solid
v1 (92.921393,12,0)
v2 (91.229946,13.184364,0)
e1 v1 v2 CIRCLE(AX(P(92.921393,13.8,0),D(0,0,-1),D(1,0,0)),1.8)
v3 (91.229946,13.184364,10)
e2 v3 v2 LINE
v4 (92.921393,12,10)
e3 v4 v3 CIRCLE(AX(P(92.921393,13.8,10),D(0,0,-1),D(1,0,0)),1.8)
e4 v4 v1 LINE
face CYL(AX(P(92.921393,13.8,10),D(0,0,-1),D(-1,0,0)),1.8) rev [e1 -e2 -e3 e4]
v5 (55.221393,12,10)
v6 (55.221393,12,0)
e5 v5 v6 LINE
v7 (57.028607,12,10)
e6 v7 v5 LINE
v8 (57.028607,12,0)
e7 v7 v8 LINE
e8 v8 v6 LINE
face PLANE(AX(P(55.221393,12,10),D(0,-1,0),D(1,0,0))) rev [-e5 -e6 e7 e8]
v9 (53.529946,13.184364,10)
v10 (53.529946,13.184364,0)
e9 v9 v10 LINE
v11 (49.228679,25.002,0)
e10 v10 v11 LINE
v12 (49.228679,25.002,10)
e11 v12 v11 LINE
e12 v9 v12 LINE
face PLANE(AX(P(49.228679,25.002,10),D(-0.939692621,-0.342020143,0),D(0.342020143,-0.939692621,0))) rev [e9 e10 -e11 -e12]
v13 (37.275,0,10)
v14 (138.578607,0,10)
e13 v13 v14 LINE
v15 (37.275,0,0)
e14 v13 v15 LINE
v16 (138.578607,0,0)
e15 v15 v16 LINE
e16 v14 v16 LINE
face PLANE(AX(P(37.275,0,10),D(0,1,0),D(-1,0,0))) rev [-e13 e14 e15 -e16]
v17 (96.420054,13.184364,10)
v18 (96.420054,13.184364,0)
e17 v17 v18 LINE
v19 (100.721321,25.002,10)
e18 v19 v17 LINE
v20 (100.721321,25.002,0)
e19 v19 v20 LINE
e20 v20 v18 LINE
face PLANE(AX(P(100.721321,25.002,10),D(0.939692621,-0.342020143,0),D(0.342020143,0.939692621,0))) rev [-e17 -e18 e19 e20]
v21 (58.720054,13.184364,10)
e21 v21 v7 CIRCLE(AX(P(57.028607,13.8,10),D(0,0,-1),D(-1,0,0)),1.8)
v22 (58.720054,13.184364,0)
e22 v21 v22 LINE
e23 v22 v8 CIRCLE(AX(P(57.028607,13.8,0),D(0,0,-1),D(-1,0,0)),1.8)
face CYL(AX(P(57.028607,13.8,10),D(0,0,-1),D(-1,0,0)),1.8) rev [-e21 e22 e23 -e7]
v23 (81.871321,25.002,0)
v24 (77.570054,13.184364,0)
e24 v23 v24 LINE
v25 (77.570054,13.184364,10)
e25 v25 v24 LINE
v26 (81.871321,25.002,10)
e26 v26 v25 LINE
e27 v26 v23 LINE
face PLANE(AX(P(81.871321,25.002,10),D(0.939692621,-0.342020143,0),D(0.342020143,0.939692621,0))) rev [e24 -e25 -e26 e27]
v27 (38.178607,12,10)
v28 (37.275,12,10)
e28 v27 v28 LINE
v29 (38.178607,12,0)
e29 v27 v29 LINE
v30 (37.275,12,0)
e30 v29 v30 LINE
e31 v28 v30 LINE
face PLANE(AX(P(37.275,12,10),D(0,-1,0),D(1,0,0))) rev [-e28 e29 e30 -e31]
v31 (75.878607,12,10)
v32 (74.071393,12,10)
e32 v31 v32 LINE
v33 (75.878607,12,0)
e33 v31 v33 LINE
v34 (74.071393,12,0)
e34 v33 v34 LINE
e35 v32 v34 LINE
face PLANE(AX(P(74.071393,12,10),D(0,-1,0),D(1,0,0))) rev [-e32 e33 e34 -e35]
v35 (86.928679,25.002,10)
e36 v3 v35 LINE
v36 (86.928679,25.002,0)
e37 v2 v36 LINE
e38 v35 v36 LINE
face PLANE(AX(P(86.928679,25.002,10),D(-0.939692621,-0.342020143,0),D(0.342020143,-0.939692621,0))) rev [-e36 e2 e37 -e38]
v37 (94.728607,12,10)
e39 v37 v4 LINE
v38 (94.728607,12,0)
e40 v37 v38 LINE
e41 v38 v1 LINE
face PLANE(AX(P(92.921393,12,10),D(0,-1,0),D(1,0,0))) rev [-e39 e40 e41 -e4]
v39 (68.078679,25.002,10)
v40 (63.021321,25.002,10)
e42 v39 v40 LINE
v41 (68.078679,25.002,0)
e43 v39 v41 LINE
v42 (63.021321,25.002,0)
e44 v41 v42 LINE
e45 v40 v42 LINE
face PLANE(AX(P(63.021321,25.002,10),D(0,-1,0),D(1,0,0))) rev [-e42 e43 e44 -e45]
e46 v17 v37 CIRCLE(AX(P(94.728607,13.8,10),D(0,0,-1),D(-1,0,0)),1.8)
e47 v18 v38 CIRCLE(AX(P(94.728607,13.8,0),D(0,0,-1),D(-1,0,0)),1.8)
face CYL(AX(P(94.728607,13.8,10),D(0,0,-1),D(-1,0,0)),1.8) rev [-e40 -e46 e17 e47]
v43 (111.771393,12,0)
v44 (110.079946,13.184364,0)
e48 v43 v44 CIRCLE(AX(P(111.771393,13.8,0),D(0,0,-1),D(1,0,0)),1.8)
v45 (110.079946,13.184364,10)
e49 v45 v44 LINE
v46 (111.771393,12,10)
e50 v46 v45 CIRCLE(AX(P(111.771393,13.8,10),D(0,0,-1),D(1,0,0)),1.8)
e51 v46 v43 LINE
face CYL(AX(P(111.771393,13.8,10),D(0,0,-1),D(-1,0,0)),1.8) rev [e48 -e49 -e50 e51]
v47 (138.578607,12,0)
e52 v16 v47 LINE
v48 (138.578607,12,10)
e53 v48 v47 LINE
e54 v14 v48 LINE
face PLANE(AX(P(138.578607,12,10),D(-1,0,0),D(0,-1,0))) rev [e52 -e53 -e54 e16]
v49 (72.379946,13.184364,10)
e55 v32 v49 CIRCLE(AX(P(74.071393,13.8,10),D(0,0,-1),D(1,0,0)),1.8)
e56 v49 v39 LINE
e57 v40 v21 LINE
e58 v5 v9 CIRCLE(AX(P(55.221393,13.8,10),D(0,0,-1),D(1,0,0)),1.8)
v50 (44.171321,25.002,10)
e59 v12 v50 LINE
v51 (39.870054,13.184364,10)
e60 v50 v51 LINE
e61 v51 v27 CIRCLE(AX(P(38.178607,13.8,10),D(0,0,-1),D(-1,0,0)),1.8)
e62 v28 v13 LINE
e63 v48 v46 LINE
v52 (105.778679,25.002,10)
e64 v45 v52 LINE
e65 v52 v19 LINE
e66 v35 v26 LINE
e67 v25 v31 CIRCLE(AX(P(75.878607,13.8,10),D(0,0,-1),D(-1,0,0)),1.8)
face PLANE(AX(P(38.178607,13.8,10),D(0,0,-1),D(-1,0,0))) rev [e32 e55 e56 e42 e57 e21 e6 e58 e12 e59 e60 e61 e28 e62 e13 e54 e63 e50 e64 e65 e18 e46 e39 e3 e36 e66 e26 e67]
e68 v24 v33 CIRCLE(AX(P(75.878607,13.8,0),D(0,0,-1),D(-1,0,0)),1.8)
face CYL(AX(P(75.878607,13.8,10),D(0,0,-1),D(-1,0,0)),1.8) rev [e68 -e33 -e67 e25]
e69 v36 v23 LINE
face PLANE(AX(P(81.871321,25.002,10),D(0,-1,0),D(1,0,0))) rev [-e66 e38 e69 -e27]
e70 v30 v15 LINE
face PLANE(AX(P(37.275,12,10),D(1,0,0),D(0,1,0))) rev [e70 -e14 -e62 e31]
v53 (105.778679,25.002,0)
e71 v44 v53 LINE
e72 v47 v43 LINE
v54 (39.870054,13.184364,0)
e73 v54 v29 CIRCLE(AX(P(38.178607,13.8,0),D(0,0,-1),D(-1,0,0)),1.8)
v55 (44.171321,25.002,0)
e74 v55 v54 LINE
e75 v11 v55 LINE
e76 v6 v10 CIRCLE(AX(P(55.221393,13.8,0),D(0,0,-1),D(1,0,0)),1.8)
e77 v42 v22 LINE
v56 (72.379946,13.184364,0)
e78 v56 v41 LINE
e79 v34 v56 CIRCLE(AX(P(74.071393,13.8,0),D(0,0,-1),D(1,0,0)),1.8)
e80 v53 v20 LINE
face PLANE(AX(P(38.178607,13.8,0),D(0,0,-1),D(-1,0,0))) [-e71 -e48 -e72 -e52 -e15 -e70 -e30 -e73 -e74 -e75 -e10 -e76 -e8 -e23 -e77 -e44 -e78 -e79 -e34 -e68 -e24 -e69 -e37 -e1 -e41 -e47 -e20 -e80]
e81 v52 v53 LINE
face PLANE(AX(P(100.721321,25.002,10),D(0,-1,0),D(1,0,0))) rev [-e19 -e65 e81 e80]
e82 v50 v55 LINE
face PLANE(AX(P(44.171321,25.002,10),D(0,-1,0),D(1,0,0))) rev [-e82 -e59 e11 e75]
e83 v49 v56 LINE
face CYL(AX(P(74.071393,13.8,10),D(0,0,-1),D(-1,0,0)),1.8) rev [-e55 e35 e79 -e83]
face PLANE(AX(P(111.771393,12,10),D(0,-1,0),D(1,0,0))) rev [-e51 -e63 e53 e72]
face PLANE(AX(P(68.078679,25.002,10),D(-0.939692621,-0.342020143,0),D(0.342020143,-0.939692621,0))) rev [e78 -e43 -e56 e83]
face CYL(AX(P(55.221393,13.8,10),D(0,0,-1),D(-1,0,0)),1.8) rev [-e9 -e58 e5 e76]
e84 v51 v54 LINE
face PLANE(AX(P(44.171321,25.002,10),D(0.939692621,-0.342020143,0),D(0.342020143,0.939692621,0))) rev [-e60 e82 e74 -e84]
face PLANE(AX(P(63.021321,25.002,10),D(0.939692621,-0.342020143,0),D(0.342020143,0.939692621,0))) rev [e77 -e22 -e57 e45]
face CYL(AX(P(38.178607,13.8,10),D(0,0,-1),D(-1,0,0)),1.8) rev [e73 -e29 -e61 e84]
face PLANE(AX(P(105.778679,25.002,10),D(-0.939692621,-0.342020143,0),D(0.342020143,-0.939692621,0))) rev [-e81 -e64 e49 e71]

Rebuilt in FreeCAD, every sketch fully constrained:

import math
import FreeCAD as App
import Part
import Sketcher

V = App.Vector
Q = App.Units.Quantity

doc = App.newDocument("Part")
body = doc.addObject("PartDesign::Body", "Body")

# Sketch on XY plane
sketch1 = doc.addObject("Sketcher::SketchObject", "Sketch")
body.addObject(sketch1)
sketch1.AttachmentSupport = (doc.XY_Plane, [""])
sketch1.MapMode = "FlatFace"
sketch1.addGeometry([
    Part.LineSegment(V(138.6, 0, 0), V(138.6, 12, 0)),  # 0
    Part.LineSegment(V(138.6, 12, 0), V(111.8, 12, 0)),  # 1
    Part.ArcOfCircle(Part.Circle(V(111.8, 13.8, 0), V(0, 0, 1), 1.8), math.radians(-160), math.radians(-90)),  # 2
    Part.LineSegment(V(110.1, 13.2, 0), V(105.8, 25, 0)),  # 3
    Part.LineSegment(V(105.8, 25, 0), V(100.7, 25, 0)),  # 4
    Part.LineSegment(V(100.7, 25, 0), V(96.4, 13.2, 0)),  # 5
    Part.ArcOfCircle(Part.Circle(V(94.7, 13.8, 0), V(0, 0, 1), 1.8), math.radians(-90), math.radians(-20)),  # 6
    Part.LineSegment(V(94.7, 12, 0), V(92.9, 12, 0)),  # 7
    Part.ArcOfCircle(Part.Circle(V(92.9, 13.8, 0), V(0, 0, 1), 1.8), math.radians(-160), math.radians(-90)),  # 8
    Part.LineSegment(V(91.2, 13.2, 0), V(86.9, 25, 0)),  # 9
    Part.LineSegment(V(86.9, 25, 0), V(81.9, 25, 0)),  # 10
    Part.LineSegment(V(81.9, 25, 0), V(77.6, 13.2, 0)),  # 11
    Part.ArcOfCircle(Part.Circle(V(75.9, 13.8, 0), V(0, 0, 1), 1.8), math.radians(-90), math.radians(-20)),  # 12
    Part.LineSegment(V(75.9, 12, 0), V(74.1, 12, 0)),  # 13
    Part.ArcOfCircle(Part.Circle(V(74.1, 13.8, 0), V(0, 0, 1), 1.8), math.radians(-160), math.radians(-90)),  # 14
    Part.LineSegment(V(72.4, 13.2, 0), V(68.1, 25, 0)),  # 15
    Part.LineSegment(V(68.1, 25, 0), V(63, 25, 0)),  # 16
    Part.LineSegment(V(63, 25, 0), V(58.7, 13.2, 0)),  # 17
    Part.ArcOfCircle(Part.Circle(V(57, 13.8, 0), V(0, 0, 1), 1.8), math.radians(-90), math.radians(-20)),  # 18
    Part.LineSegment(V(57, 12, 0), V(55.2, 12, 0)),  # 19
    Part.ArcOfCircle(Part.Circle(V(55.2, 13.8, 0), V(0, 0, 1), 1.8), math.radians(-160), math.radians(-90)),  # 20
    Part.LineSegment(V(53.5, 13.2, 0), V(49.2, 25, 0)),  # 21
    Part.LineSegment(V(49.2, 25, 0), V(44.2, 25, 0)),  # 22
    Part.LineSegment(V(44.2, 25, 0), V(39.9, 13.2, 0)),  # 23
    Part.ArcOfCircle(Part.Circle(V(38.2, 13.8, 0), V(0, 0, 1), 1.8), math.radians(-90), math.radians(-20)),  # 24
    Part.LineSegment(V(38.2, 12, 0), V(37.3, 12, 0)),  # 25
    Part.LineSegment(V(37.3, 12, 0), V(37.3, 0, 0)),  # 26
    Part.LineSegment(V(37.3, 0, 0), V(138.6, 0, 0)),  # 27
], False)
sketch1.addConstraint([
    Sketcher.Constraint("Coincident", 0, 2, 1, 1),
    Sketcher.Constraint("Tangent", 1, 2, 2, 2),
    Sketcher.Constraint("Tangent", 2, 1, 3, 1),
    Sketcher.Constraint("Coincident", 3, 2, 4, 1),
    Sketcher.Constraint("Coincident", 4, 2, 5, 1),
    Sketcher.Constraint("Tangent", 5, 2, 6, 2),
    Sketcher.Constraint("Tangent", 6, 1, 7, 1),
    Sketcher.Constraint("Tangent", 7, 2, 8, 2),
    Sketcher.Constraint("Tangent", 8, 1, 9, 1),
    Sketcher.Constraint("Coincident", 9, 2, 10, 1),
    Sketcher.Constraint("Coincident", 10, 2, 11, 1),
    Sketcher.Constraint("Tangent", 11, 2, 12, 2),
    Sketcher.Constraint("Tangent", 12, 1, 13, 1),
    Sketcher.Constraint("Tangent", 13, 2, 14, 2),
    Sketcher.Constraint("Tangent", 14, 1, 15, 1),
    Sketcher.Constraint("Coincident", 15, 2, 16, 1),
    Sketcher.Constraint("Coincident", 16, 2, 17, 1),
    Sketcher.Constraint("Tangent", 17, 2, 18, 2),
    Sketcher.Constraint("Tangent", 18, 1, 19, 1),
    Sketcher.Constraint("Tangent", 19, 2, 20, 2),
    Sketcher.Constraint("Tangent", 20, 1, 21, 1),
    Sketcher.Constraint("Coincident", 21, 2, 22, 1),
    Sketcher.Constraint("Coincident", 22, 2, 23, 1),
    Sketcher.Constraint("Tangent", 23, 2, 24, 2),
    Sketcher.Constraint("Tangent", 24, 1, 25, 1),
    Sketcher.Constraint("Coincident", 25, 2, 26, 1),
    Sketcher.Constraint("Coincident", 26, 2, 27, 1),
    Sketcher.Constraint("Coincident", 27, 2, 0, 1),
    Sketcher.Constraint("Vertical", 0),
    Sketcher.Constraint("Horizontal", 1),
    Sketcher.Constraint("Horizontal", 4),
    Sketcher.Constraint("Horizontal", 7),
    Sketcher.Constraint("Horizontal", 10),
    Sketcher.Constraint("Horizontal", 13),
    Sketcher.Constraint("Horizontal", 16),
    Sketcher.Constraint("Horizontal", 19),
    Sketcher.Constraint("Horizontal", 22),
    Sketcher.Constraint("Horizontal", 25),
    Sketcher.Constraint("Vertical", 26),
    Sketcher.Constraint("Horizontal", 27),
    Sketcher.Constraint("Equal", 2, 6),
    Sketcher.Constraint("Equal", 6, 8),
    Sketcher.Constraint("Equal", 8, 12),
    Sketcher.Constraint("Equal", 12, 14),
    Sketcher.Constraint("Equal", 14, 18),
    Sketcher.Constraint("Equal", 18, 20),
    Sketcher.Constraint("Equal", 20, 24),
    Sketcher.Constraint("PointOnObject", 26, 2, -1),
    Sketcher.Constraint("Parallel", 3, 9),
    Sketcher.Constraint("Parallel", 5, 11),
    Sketcher.Constraint("Parallel", 9, 15),
    Sketcher.Constraint("Parallel", 11, 17),
    Sketcher.Constraint("Parallel", 15, 21),
    Sketcher.Constraint("Parallel", 17, 23),
    Sketcher.Constraint("Horizontal", 2, 3, 6, 3),
    Sketcher.Constraint("Horizontal", 8, 3, 12, 3),
    Sketcher.Constraint("Horizontal", 14, 3, 18, 3),
    Sketcher.Constraint("Horizontal", 20, 3, 24, 3),
    Sketcher.Constraint("Horizontal", 2, 1, 5, 2),
    Sketcher.Constraint("Horizontal", 4, 2, 9, 2),
    Sketcher.Constraint("Horizontal", 10, 2, 15, 2),
    Sketcher.Constraint("Horizontal", 16, 2, 21, 2),
    Sketcher.Constraint("Equal", 4, 10),
    Sketcher.Constraint("Equal", 7, 13),
    Sketcher.Constraint("Equal", 10, 16),
    Sketcher.Constraint("Equal", 13, 19),
    Sketcher.Constraint("Equal", 16, 22),
    Sketcher.Constraint("Radius", 2, 1.8),
    Sketcher.Constraint("DistanceY", 0, 1, 0, 2, 12.0),
    Sketcher.Constraint("Angle", 3, Q("110 deg")),
    Sketcher.Constraint("DistanceX", 14, 3, 2, 3, 37.7),
    Sketcher.Constraint("DistanceX", 12, 3, 0, 2, 62.7),
    Sketcher.Constraint("DistanceY", -1, 1, 3, 2, 25.002),
    Sketcher.Constraint("DistanceX", -1, 1, 25, 2, 37.275),
    Sketcher.Constraint("DistanceX", 1, 2, 1, 1, 26.807214),
    Sketcher.Constraint("DistanceX", 25, 2, 25, 1, 0.903607),
])
pad1 = doc.addObject("PartDesign::Pad", "Pad")
body.addObject(pad1)
pad1.Profile = sketch1
pad1.Length = 10

doc.recompute()
